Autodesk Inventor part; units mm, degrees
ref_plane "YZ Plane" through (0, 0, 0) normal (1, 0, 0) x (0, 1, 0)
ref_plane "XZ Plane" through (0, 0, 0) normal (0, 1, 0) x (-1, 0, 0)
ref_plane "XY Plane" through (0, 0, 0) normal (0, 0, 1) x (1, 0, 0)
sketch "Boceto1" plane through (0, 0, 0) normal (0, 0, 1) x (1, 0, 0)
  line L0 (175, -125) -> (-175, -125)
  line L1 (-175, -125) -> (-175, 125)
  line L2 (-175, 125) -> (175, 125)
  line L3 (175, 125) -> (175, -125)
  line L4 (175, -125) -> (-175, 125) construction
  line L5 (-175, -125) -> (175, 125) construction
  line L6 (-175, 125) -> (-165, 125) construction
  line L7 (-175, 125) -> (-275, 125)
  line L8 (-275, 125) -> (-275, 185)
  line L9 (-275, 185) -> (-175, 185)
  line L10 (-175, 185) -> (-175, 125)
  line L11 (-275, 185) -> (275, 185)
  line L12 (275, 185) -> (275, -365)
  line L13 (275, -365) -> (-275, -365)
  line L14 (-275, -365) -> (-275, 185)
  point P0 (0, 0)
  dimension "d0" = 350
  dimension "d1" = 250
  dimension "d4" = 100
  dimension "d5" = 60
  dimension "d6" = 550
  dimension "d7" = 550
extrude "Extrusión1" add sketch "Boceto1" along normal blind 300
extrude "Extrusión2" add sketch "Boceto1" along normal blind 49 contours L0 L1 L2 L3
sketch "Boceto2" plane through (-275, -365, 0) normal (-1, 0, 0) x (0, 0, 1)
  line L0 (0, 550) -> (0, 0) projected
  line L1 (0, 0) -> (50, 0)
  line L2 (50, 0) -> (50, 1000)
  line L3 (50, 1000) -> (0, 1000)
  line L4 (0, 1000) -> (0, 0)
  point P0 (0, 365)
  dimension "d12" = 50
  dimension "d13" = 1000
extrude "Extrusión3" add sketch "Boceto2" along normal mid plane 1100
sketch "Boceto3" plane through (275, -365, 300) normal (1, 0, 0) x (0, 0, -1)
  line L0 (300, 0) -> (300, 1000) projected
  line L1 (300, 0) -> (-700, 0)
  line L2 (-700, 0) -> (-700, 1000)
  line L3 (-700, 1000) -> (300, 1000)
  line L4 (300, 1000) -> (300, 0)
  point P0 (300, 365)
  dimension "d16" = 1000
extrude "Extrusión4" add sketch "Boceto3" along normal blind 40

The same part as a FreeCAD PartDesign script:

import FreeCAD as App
import Part
import Sketcher
from FreeCAD import Vector
Q = App.Units.Quantity

doc = App.newDocument("Part")
body = doc.addObject("PartDesign::Body", "Body")

# Sketch on XY plane
sketch1 = body.newObject("Sketcher::SketchObject", "Sketch")
sketch1.AttachmentSupport = (doc.getObject("XY_Plane"), [""])
sketch1.MapMode = "FlatFace"
sketch1.addGeometry([
    Part.LineSegment(Vector(275, 185, 0), Vector(-275, 185, 0)),  # 0
    Part.LineSegment(Vector(-275, 185, 0), Vector(-275, -365, 0)),  # 1
    Part.LineSegment(Vector(-275, -365, 0), Vector(275, -365, 0)),  # 2
    Part.LineSegment(Vector(275, -365, 0), Vector(275, 185, 0)),  # 3
    Part.LineSegment(Vector(175, 125, 0), Vector(175, -125, 0)),  # 4
    Part.LineSegment(Vector(175, -125, 0), Vector(-175, -125, 0)),  # 5
    Part.LineSegment(Vector(-175, -125, 0), Vector(-175, 125, 0)),  # 6
    Part.LineSegment(Vector(-175, 125, 0), Vector(175, 125, 0)),  # 7
], False)
sketch1.addConstraint([
    Sketcher.Constraint("Coincident", 0, 2, 1, 1),
    Sketcher.Constraint("Coincident", 1, 2, 2, 1),
    Sketcher.Constraint("Coincident", 2, 2, 3, 1),
    Sketcher.Constraint("Coincident", 3, 2, 0, 1),
    Sketcher.Constraint("Coincident", 4, 2, 5, 1),
    Sketcher.Constraint("Coincident", 5, 2, 6, 1),
    Sketcher.Constraint("Coincident", 6, 2, 7, 1),
    Sketcher.Constraint("Coincident", 7, 2, 4, 1),
    Sketcher.Constraint("Horizontal", 0),
    Sketcher.Constraint("Vertical", 1),
    Sketcher.Constraint("Horizontal", 2),
    Sketcher.Constraint("Vertical", 3),
    Sketcher.Constraint("Vertical", 4),
    Sketcher.Constraint("Horizontal", 5),
    Sketcher.Constraint("Vertical", 6),
    Sketcher.Constraint("Horizontal", 7),
    Sketcher.Constraint("Symmetric", 4, 2, 6, 2, -1, 1),
    Sketcher.Constraint("Equal", 2, 1),
    Sketcher.Constraint("DistanceX", 0, 2, 0, 1, Q("550 mm")),
    Sketcher.Constraint("DistanceX", 5, 2, 5, 1, Q("350 mm")),
    Sketcher.Constraint("DistanceY", 4, 2, 4, 1, Q("250 mm")),
    Sketcher.Constraint("DistanceX", 4, 2, 2, 2, Q("100 mm")),
    Sketcher.Constraint("DistanceY", 6, 2, 0, 2, Q("60 mm")),
])
pad1 = body.newObject("PartDesign::Pad", "Pad")
pad1.Profile = sketch1
pad1.Length = 300

# Sketch on XY plane
sketch2 = body.newObject("Sketcher::SketchObject", "Sketch001")
sketch2.AttachmentSupport = (doc.getObject("XY_Plane"), [""])
sketch2.MapMode = "FlatFace"
sketch2.addGeometry([
    Part.LineSegment(Vector(-175, -125, 0), Vector(175, -125, 0)),
    Part.LineSegment(Vector(175, -125, 0), Vector(175, 125, 0)),
    Part.LineSegment(Vector(175, 125, 0), Vector(-175, 125, 0)),
    Part.LineSegment(Vector(-175, 125, 0), Vector(-175, -125, 0)),
], False)
sketch2.addConstraint([
    Sketcher.Constraint("Coincident", 0, 2, 1, 1),
    Sketcher.Constraint("Coincident", 1, 2, 2, 1),
    Sketcher.Constraint("Coincident", 2, 2, 3, 1),
    Sketcher.Constraint("Coincident", 3, 2, 0, 1),
    Sketcher.Constraint("Horizontal", 0),
    Sketcher.Constraint("Vertical", 1),
    Sketcher.Constraint("Horizontal", 2),
    Sketcher.Constraint("Vertical", 3),
    Sketcher.Constraint("Symmetric", 0, 2, 2, 2, -1, 1),
    Sketcher.Constraint("DistanceX", 0, 1, 0, 2, Q("350 mm")),
    Sketcher.Constraint("DistanceY", 1, 1, 1, 2, Q("250 mm")),
])
pad2 = body.newObject("PartDesign::Pad", "Pad001")
pad2.Profile = sketch2
pad2.Length = 49

# Sketch on YZ plane
sketch3 = body.newObject("Sketcher::SketchObject", "Sketch002")
sketch3.AttachmentSupport = (doc.getObject("YZ_Plane"), [""])
sketch3.MapMode = "FlatFace"
sketch3.AttachmentOffset = App.Placement(Vector(0, 0, -275), App.Rotation())
sketch3.addGeometry([
    Part.LineSegment(Vector(635, 0, 0), Vector(-365, 0, 0)),
    Part.LineSegment(Vector(-365, 0, 0), Vector(-365, 50, 0)),
    Part.LineSegment(Vector(-365, 50, 0), Vector(635, 50, 0)),
    Part.LineSegment(Vector(635, 50, 0), Vector(635, 0, 0)),
], False)
sketch3.addConstraint([
    Sketcher.Constraint("Coincident", 0, 2, 1, 1),
    Sketcher.Constraint("Coincident", 1, 2, 2, 1),
    Sketcher.Constraint("Coincident", 2, 2, 3, 1),
    Sketcher.Constraint("Coincident", 3, 2, 0, 1),
    Sketcher.Constraint("Horizontal", 0),
    Sketcher.Constraint("Vertical", 1),
    Sketcher.Constraint("Horizontal", 2),
    Sketcher.Constraint("Vertical", 3),
    Sketcher.Constraint("PointOnObject", 0, 2, -1),
    Sketcher.Constraint("DistanceX", 0, 2, 0, 1, Q("1000 mm")),
    Sketcher.Constraint("DistanceY", 1, 1, 1, 2, Q("50 mm")),
    Sketcher.Constraint("DistanceX", 0, 2, -1, 1, Q("365 mm")),
])
pad3 = body.newObject("PartDesign::Pad", "Pad002")
pad3.Profile = sketch3
pad3.Length = 1100
pad3.Midplane = True

# Sketch on YZ plane
sketch4 = body.newObject("Sketcher::SketchObject", "Sketch003")
sketch4.AttachmentSupport = (doc.getObject("YZ_Plane"), [""])
sketch4.MapMode = "FlatFace"
sketch4.AttachmentOffset = App.Placement(Vector(0, 0, 275), App.Rotation())
sketch4.addGeometry([
    Part.LineSegment(Vector(-365, 1000, 0), Vector(-365, 0, 0)),
    Part.LineSegment(Vector(-365, 0, 0), Vector(635, 0, 0)),
    Part.LineSegment(Vector(635, 0, 0), Vector(635, 1000, 0)),
    Part.LineSegment(Vector(635, 1000, 0), Vector(-365, 1000, 0)),
], False)
sketch4.addConstraint([
    Sketcher.Constraint("Coincident", 0, 2, 1, 1),
    Sketcher.Constraint("Coincident", 1, 2, 2, 1),
    Sketcher.Constraint("Coincident", 2, 2, 3, 1),
    Sketcher.Constraint("Coincident", 3, 2, 0, 1),
    Sketcher.Constraint("Vertical", 0),
    Sketcher.Constraint("Horizontal", 1),
    Sketcher.Constraint("Vertical", 2),
    Sketcher.Constraint("Horizontal", 3),
    Sketcher.Constraint("PointOnObject", 0, 2, -1),
    Sketcher.Constraint("Equal", 3, 0),
    Sketcher.Constraint("DistanceX", 1, 1, 1, 2, Q("1000 mm")),
    Sketcher.Constraint("DistanceX", 0, 2, -1, 1, Q("365 mm")),
])
pad4 = body.newObject("PartDesign::Pad", "Pad003")
pad4.Profile = sketch4
pad4.Length = 40

doc.recompute()
